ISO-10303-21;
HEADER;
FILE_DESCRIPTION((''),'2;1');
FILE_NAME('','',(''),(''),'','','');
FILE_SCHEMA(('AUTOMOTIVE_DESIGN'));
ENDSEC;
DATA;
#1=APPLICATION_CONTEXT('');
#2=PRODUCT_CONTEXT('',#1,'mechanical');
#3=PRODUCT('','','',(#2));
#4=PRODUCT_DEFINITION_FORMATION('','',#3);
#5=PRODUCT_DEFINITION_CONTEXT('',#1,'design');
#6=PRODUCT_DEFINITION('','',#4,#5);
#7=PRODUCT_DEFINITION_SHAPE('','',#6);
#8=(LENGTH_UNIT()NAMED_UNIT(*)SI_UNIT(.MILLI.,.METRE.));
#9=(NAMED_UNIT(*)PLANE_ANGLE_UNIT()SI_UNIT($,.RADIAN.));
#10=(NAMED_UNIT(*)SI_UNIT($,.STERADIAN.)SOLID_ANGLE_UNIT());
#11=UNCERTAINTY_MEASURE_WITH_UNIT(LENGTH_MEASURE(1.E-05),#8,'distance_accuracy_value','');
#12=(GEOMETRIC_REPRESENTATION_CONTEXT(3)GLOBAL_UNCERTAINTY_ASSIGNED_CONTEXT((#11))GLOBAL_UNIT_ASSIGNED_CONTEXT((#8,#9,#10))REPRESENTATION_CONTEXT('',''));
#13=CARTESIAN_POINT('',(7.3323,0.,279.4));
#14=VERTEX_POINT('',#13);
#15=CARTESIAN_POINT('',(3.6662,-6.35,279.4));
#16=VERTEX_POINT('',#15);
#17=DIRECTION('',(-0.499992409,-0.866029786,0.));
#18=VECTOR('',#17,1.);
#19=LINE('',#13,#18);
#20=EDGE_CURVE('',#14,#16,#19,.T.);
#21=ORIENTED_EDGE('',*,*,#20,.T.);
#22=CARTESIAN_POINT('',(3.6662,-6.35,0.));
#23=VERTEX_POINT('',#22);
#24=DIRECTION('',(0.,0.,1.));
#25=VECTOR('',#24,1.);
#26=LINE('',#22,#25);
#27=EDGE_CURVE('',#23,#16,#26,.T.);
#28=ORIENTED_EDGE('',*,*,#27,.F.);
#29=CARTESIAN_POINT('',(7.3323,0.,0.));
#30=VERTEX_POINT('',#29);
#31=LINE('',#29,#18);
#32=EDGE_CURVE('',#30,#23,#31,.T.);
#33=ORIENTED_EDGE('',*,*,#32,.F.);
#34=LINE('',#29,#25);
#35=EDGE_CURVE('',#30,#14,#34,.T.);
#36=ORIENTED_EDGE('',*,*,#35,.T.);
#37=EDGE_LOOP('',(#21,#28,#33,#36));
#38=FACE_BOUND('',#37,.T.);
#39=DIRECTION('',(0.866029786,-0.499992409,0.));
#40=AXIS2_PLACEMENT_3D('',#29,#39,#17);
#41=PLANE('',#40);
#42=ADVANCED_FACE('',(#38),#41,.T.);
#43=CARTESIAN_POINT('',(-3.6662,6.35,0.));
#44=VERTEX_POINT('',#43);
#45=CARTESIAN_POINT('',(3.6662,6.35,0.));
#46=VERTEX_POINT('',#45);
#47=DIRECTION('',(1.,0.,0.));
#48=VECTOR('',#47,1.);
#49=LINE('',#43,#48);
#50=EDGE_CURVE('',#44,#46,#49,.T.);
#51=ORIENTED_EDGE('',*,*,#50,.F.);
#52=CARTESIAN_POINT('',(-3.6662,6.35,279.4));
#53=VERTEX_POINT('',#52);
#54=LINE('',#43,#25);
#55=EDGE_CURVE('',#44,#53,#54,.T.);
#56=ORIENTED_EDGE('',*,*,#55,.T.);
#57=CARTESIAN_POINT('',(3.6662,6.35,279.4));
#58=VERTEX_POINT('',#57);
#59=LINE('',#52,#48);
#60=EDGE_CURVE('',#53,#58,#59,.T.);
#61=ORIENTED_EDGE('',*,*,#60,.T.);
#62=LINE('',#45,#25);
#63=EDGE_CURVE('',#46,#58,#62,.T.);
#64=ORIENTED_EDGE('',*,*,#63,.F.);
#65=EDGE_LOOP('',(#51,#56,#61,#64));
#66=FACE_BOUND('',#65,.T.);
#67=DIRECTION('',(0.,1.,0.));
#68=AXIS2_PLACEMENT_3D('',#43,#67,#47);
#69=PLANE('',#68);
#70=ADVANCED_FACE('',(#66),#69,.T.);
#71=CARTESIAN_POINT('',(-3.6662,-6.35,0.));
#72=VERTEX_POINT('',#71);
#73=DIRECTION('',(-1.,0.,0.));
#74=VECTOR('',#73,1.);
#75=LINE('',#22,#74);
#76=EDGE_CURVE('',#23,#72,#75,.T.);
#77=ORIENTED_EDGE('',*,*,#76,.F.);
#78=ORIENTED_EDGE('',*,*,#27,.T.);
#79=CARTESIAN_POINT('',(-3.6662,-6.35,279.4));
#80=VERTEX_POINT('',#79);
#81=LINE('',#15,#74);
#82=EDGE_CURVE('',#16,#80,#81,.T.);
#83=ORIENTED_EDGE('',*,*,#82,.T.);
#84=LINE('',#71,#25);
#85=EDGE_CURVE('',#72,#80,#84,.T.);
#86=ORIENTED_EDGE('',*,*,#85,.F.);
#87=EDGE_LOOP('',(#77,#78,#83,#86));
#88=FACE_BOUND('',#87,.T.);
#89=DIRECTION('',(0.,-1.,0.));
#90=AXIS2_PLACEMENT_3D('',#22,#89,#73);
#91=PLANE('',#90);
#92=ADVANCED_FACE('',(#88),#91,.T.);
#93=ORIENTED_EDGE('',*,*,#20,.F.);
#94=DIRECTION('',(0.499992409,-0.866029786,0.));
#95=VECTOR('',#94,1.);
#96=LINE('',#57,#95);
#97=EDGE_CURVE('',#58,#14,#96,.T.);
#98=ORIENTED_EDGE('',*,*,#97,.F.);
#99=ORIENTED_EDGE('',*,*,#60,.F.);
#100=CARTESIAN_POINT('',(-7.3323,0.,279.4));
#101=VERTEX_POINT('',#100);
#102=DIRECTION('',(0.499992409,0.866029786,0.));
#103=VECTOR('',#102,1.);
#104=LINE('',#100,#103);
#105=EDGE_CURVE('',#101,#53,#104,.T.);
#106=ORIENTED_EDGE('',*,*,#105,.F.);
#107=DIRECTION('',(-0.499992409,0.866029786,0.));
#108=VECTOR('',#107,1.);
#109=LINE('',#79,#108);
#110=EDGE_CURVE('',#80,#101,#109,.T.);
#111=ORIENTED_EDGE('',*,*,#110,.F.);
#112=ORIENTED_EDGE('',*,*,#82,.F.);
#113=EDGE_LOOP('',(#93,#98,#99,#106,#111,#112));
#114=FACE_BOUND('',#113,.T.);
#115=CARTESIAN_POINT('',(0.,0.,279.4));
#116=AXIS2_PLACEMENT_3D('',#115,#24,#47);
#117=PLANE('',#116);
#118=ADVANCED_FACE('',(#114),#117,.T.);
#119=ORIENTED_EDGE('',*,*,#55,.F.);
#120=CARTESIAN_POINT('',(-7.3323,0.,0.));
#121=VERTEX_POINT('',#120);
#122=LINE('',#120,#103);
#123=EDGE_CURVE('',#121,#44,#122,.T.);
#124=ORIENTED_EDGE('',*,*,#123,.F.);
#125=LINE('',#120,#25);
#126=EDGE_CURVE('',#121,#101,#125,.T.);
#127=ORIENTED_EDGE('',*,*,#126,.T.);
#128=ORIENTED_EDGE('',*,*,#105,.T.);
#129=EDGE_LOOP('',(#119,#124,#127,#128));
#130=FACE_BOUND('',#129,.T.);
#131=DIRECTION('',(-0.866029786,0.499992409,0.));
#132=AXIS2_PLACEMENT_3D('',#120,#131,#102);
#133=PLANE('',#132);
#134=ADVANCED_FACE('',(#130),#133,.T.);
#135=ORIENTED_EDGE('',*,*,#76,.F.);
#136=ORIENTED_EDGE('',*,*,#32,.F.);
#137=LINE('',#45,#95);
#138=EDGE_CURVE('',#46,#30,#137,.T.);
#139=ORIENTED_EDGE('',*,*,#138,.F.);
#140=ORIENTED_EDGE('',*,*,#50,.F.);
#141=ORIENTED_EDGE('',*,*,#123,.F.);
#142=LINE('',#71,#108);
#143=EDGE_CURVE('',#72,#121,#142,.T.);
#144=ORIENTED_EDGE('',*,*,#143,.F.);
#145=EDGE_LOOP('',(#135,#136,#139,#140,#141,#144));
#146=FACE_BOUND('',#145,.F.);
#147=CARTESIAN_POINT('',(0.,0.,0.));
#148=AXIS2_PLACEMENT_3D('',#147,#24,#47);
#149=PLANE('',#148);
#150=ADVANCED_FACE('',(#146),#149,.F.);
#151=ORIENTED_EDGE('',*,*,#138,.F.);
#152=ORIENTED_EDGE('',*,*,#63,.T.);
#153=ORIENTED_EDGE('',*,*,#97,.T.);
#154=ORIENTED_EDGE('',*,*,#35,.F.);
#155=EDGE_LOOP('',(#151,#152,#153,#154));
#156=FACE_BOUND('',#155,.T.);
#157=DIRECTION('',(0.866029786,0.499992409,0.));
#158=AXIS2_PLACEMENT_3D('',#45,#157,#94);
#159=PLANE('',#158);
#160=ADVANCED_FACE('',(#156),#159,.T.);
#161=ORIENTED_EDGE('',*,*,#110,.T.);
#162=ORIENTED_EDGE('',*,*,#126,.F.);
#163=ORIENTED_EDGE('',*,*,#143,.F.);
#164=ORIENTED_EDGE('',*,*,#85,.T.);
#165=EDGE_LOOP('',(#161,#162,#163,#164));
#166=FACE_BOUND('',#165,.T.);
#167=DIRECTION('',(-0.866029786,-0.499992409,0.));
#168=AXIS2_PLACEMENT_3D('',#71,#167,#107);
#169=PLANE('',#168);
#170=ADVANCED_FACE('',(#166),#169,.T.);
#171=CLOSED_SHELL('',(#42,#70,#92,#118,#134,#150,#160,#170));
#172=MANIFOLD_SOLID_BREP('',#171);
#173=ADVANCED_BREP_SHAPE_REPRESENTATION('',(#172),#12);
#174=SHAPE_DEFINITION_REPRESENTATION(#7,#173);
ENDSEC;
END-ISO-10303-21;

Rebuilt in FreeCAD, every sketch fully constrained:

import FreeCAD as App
import Part
import Sketcher
from FreeCAD import Vector
Q = App.Units.Quantity

doc = App.newDocument("Part")
body = doc.addObject("PartDesign::Body", "Body")

sketch1 = body.newObject("Sketcher::SketchObject", "Sketch")
sketch1.AttachmentSupport = (doc.getObject("XY_Plane"), [""])
sketch1.MapMode = "FlatFace"
sketch1.addGeometry([
    Part.LineSegment(Vector(4, -6, 0), Vector(7, 0, 0)),
    Part.LineSegment(Vector(7, 0, 0), Vector(4, 6, 0)),
    Part.LineSegment(Vector(4, 6, 0), Vector(-4, 6, 0)),
    Part.LineSegment(Vector(-4, 6, 0), Vector(-7, 0, 0)),
    Part.LineSegment(Vector(-7, 0, 0), Vector(-4, -6, 0)),
    Part.LineSegment(Vector(-4, -6, 0), Vector(4, -6, 0)),
], False)
sketch1.addConstraint([
    Sketcher.Constraint("Coincident", 0, 2, 1, 1),
    Sketcher.Constraint("Coincident", 1, 2, 2, 1),
    Sketcher.Constraint("Coincident", 2, 2, 3, 1),
    Sketcher.Constraint("Coincident", 3, 2, 4, 1),
    Sketcher.Constraint("Coincident", 4, 2, 5, 1),
    Sketcher.Constraint("Coincident", 5, 2, 0, 1),
    Sketcher.Constraint("Horizontal", 2),
    Sketcher.Constraint("Horizontal", 5),
    Sketcher.Constraint("Symmetric", 0, 2, 3, 2, -1, 1),
    Sketcher.Constraint("Symmetric", 1, 2, 4, 2, -1, 1),
    Sketcher.Constraint("PointOnObject", 0, 2, -1),
    Sketcher.Constraint("Parallel", 0, 3),
    Sketcher.Constraint("Vertical", 2, 2, 4, 2),
    Sketcher.Constraint("DistanceY", 4, 2, 2, 2, Q("0.5 in")),
    Sketcher.Constraint("Angle", 0, Q("60.0005 deg")),
    Sketcher.Constraint("DistanceX", 2, 2, 0, 2, Q("0.433 in")),
])
pad1 = body.newObject("PartDesign::Pad", "Pad")
pad1.Profile = sketch1
pad1.Length = Q("11 in")

doc.recompute()
